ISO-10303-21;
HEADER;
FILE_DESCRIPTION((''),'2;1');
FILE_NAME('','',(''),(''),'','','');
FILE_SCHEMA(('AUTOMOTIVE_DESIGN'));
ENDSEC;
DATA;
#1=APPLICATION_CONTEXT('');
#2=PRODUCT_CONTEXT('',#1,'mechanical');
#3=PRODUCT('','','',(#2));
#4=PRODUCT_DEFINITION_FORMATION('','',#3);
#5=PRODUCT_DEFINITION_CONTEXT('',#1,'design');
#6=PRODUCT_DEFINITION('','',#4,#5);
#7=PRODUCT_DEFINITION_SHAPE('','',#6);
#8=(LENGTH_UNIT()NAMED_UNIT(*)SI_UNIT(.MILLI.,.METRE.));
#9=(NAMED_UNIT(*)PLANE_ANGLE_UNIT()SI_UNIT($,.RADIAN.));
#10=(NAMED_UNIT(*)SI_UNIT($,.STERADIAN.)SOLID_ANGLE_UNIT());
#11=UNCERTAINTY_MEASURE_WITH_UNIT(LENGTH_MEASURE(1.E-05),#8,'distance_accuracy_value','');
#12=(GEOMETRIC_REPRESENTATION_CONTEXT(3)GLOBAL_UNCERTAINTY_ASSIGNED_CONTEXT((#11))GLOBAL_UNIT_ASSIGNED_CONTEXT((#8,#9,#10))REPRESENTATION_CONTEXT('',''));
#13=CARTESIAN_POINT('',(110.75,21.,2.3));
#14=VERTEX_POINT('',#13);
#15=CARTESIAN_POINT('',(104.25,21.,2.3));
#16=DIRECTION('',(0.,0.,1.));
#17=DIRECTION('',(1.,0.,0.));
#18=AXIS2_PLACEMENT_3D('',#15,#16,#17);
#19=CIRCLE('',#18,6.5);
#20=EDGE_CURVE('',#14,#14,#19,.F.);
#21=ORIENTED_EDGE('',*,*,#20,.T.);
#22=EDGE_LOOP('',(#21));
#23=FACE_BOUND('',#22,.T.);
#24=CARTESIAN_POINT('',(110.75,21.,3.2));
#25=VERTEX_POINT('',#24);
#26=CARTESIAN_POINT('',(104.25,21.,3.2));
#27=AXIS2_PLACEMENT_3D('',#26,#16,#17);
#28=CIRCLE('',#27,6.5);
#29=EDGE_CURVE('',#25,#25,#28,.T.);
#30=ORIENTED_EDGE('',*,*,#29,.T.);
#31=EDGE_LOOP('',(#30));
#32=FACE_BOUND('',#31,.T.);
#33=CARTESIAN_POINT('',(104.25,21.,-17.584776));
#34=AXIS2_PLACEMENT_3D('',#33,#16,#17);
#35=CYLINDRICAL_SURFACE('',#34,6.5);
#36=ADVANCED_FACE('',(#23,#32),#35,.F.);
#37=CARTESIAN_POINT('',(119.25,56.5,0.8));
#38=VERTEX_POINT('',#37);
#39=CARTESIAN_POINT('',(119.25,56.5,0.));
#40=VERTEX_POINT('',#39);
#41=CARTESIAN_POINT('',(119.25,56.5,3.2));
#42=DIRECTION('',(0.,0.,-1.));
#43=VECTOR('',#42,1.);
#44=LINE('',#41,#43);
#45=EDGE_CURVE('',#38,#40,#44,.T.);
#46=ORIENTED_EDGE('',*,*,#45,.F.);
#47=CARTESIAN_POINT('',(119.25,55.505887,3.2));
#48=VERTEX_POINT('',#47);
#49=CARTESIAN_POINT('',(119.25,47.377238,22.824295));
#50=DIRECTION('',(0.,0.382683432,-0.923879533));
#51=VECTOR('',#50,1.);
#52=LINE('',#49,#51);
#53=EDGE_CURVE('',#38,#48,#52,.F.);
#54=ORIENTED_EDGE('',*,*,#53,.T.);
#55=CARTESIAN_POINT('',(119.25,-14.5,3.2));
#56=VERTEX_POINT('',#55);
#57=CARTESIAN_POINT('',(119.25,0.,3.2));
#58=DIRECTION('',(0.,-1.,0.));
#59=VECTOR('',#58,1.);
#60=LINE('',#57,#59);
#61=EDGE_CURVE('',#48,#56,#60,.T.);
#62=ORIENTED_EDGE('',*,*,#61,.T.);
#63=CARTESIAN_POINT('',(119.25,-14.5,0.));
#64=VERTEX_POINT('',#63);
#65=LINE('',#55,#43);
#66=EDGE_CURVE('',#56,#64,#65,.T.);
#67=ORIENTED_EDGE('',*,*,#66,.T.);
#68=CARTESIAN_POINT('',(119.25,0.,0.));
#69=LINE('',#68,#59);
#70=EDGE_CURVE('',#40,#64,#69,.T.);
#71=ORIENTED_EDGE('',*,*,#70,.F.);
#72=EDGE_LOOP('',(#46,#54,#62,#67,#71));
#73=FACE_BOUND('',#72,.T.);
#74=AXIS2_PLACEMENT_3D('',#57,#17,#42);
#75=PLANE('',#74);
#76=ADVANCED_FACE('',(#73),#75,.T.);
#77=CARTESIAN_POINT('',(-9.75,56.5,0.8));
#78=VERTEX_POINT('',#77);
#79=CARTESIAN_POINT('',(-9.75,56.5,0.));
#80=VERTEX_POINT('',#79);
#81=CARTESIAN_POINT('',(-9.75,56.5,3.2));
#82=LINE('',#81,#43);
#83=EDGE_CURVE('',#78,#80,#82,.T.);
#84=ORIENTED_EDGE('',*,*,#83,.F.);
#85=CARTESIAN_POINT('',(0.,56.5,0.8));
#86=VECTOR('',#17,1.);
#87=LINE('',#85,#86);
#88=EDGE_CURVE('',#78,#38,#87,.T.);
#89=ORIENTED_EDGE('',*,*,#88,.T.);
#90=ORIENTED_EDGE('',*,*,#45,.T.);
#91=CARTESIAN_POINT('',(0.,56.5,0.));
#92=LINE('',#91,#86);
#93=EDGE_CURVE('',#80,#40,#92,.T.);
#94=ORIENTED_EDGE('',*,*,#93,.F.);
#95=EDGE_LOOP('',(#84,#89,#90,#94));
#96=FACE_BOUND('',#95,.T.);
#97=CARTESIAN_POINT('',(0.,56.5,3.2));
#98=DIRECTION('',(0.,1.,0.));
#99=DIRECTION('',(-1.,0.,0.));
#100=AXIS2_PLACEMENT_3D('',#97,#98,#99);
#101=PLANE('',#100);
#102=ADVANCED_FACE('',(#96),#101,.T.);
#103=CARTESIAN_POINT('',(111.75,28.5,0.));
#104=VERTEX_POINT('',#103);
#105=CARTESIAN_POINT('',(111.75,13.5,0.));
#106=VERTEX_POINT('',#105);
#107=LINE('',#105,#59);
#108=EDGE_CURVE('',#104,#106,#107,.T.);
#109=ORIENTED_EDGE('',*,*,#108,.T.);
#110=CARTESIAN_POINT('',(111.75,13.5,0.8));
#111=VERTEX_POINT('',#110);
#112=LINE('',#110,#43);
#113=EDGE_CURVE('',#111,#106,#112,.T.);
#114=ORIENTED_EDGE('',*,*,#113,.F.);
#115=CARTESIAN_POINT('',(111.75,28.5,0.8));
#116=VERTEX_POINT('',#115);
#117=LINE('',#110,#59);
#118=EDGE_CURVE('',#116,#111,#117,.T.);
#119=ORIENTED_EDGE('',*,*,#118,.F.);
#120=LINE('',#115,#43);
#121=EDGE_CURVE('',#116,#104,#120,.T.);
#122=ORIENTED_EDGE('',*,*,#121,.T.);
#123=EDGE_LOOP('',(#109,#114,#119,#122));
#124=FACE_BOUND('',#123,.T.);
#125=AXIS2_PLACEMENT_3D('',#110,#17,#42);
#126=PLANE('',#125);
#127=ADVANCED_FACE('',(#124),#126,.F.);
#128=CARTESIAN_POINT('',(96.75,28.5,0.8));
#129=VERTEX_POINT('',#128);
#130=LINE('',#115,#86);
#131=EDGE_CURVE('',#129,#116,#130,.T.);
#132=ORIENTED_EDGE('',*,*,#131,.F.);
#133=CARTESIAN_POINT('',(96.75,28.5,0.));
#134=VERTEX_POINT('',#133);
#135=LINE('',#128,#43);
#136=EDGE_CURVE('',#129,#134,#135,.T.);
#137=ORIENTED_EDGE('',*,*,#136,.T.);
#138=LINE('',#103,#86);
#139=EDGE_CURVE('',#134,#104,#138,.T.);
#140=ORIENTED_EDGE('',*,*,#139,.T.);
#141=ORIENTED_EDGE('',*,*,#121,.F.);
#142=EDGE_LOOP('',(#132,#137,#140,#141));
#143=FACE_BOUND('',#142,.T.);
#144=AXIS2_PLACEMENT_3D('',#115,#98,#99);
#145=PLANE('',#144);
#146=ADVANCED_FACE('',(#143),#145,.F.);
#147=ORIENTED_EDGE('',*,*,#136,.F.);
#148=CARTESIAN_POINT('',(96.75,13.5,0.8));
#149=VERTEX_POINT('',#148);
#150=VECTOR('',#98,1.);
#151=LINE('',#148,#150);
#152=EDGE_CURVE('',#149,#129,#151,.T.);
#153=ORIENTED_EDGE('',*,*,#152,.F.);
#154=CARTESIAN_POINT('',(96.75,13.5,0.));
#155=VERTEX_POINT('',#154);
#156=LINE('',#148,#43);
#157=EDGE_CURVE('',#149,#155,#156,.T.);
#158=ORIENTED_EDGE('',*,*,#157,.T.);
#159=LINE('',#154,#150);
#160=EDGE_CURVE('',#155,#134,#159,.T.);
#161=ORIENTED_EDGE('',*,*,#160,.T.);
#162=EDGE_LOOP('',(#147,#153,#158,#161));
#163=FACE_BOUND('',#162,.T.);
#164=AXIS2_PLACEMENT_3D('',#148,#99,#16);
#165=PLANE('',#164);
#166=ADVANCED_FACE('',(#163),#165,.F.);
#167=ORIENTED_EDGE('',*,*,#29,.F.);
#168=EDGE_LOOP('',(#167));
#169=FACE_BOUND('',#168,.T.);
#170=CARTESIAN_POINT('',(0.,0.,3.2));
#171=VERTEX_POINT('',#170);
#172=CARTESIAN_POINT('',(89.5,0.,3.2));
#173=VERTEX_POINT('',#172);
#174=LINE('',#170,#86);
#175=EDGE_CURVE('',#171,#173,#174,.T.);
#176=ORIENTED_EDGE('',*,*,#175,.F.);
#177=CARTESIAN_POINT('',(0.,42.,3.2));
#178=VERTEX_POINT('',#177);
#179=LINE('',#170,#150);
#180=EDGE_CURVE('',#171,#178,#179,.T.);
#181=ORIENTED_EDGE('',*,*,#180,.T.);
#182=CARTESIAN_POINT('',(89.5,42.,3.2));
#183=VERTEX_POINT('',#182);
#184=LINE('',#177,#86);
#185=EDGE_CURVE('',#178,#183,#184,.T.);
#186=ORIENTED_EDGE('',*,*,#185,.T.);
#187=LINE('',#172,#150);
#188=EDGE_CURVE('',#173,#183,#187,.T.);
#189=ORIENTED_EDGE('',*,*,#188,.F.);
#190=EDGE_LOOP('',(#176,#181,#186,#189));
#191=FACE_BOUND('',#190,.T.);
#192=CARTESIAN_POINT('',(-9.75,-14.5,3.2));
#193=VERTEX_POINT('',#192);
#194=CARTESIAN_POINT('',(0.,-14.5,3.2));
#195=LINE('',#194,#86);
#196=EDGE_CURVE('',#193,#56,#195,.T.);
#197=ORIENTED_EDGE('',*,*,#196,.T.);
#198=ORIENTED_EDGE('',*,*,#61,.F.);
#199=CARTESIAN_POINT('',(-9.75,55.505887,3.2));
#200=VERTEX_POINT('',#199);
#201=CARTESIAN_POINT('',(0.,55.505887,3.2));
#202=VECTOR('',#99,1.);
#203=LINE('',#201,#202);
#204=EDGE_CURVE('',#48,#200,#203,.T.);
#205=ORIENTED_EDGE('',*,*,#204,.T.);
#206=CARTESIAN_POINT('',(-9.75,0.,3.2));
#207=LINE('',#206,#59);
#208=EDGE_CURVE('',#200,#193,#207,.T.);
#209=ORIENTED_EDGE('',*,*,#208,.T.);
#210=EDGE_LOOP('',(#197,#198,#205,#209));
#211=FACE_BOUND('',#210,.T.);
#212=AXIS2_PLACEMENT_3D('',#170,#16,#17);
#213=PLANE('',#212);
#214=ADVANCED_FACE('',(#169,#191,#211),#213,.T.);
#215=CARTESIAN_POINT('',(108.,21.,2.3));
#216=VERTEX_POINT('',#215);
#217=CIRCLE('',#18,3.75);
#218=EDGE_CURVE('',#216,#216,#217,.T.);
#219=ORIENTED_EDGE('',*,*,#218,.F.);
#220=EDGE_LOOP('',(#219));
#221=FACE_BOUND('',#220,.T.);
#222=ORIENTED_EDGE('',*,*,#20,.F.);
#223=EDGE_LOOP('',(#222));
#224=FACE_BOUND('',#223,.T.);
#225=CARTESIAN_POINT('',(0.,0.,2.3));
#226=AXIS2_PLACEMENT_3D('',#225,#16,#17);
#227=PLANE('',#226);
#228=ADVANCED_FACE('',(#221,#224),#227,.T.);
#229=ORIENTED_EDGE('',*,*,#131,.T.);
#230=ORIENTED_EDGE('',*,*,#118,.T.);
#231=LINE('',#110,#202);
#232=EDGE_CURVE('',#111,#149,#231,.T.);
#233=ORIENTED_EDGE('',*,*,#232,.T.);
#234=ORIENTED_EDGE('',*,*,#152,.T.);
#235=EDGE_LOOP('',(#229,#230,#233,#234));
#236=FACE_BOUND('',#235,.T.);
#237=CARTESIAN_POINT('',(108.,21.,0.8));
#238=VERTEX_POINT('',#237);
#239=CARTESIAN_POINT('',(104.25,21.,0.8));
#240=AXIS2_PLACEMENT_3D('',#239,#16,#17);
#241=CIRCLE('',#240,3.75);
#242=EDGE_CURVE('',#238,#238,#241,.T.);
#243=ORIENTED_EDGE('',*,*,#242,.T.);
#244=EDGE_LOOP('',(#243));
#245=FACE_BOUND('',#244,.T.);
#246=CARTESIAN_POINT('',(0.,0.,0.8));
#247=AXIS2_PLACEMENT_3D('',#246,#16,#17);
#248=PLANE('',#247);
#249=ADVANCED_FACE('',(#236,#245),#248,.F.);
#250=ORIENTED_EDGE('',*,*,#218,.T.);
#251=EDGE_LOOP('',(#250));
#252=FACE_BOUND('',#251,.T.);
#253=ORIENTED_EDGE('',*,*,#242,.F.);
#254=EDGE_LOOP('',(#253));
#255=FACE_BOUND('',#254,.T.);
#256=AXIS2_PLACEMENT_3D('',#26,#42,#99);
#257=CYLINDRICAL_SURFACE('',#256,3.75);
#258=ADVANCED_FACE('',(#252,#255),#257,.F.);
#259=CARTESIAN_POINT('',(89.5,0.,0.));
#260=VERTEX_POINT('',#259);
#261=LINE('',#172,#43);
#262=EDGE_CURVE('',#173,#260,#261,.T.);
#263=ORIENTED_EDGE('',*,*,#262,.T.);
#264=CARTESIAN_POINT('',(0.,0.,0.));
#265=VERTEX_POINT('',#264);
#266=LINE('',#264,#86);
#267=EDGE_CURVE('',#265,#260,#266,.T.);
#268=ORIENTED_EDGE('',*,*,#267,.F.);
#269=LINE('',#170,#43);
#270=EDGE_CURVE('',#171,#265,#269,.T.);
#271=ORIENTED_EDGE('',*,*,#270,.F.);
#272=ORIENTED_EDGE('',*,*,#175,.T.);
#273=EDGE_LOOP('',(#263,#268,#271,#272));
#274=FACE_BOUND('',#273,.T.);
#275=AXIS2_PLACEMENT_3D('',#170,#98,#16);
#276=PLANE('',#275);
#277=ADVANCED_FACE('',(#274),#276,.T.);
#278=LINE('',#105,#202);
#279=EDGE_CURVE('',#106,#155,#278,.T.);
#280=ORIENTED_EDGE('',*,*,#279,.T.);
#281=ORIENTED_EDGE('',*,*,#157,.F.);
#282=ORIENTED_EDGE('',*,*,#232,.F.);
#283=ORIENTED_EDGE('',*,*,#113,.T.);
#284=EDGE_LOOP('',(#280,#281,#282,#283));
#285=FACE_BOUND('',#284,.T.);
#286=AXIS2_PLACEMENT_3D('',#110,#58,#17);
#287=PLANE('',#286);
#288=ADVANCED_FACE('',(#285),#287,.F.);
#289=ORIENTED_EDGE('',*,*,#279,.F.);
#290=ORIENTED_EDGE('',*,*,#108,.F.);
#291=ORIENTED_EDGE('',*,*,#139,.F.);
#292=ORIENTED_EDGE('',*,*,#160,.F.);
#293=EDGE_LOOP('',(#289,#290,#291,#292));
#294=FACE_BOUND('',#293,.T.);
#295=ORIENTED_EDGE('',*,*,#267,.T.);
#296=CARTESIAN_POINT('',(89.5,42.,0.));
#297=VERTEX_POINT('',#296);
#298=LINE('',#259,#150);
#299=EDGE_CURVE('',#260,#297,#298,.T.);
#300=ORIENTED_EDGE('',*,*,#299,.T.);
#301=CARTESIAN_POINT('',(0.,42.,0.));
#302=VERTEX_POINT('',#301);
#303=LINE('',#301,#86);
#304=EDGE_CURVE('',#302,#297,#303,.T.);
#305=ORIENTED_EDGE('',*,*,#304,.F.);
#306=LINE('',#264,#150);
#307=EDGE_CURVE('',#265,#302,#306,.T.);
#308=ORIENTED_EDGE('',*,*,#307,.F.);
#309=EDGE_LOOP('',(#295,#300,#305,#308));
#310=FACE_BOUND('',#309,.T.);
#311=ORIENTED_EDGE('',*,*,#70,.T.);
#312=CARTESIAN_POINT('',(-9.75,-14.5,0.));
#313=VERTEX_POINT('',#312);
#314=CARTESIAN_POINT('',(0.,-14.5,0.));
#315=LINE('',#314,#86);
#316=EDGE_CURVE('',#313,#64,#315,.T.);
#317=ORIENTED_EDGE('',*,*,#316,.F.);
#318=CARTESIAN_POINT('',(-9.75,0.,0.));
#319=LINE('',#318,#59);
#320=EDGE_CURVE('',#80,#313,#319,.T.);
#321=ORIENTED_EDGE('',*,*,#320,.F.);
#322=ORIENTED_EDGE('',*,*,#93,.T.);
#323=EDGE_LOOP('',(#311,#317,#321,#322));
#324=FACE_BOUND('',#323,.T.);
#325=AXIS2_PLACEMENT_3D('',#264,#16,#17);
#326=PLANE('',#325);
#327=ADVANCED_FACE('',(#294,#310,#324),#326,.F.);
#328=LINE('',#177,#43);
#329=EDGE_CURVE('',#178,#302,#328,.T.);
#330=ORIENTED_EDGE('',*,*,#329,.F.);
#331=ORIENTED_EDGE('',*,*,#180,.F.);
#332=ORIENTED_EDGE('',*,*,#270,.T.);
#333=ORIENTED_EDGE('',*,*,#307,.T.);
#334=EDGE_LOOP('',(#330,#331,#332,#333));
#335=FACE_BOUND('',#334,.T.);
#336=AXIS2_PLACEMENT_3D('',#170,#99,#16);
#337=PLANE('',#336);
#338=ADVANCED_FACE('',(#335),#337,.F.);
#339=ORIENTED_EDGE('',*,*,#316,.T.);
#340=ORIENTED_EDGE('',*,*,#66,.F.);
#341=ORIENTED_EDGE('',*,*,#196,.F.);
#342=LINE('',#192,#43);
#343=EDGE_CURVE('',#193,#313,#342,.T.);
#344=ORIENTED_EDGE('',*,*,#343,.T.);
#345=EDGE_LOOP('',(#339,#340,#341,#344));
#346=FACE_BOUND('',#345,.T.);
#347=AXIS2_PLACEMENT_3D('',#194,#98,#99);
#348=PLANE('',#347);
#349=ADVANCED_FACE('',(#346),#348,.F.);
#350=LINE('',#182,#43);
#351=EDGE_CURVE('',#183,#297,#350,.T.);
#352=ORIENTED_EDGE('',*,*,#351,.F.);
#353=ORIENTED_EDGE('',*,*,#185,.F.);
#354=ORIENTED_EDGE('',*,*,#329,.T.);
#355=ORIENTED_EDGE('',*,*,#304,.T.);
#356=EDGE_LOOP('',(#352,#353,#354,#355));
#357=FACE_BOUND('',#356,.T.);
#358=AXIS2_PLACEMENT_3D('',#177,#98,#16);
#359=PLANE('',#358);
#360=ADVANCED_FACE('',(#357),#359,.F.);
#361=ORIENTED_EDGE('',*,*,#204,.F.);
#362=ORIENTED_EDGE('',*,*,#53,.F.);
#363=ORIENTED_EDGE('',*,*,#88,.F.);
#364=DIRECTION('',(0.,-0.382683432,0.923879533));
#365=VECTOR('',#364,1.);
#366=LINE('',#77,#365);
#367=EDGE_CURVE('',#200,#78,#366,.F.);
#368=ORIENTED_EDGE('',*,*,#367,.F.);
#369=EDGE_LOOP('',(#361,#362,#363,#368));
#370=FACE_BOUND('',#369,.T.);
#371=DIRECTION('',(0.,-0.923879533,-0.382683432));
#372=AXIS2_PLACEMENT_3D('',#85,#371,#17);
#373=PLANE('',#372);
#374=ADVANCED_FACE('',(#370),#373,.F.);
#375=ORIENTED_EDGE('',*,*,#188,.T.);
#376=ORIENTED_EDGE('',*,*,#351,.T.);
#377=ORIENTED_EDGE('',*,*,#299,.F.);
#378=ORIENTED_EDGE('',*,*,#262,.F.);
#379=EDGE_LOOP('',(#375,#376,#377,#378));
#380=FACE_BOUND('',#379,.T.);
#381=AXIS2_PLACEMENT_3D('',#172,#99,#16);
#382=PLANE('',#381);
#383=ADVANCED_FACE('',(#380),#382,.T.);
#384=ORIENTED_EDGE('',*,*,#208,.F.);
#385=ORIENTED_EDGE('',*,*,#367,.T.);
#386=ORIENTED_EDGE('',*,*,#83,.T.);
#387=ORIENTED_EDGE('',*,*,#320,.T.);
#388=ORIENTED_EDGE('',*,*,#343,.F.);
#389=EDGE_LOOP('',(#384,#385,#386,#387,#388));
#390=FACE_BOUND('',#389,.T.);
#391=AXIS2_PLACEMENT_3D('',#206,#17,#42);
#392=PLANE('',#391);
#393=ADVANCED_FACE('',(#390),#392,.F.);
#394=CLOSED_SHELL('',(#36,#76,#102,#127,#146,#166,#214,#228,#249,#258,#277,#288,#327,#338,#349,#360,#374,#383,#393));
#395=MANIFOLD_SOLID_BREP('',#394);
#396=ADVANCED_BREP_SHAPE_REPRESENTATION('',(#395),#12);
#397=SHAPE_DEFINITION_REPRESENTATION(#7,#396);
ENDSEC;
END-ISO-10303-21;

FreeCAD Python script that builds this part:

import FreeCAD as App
import Part
import Sketcher
Q = App.Units.Quantity


def edges_at(feature, points):
    """Names of the edges that pass closest to the given points."""
    edges = feature.Shape.Edges
    near = lambda p: min(range(len(edges)), key=lambda i: edges[i].distToShape(Part.Vertex(*p))[0])
    return sorted({f"Edge{near(p) + 1}" for p in points})

doc = App.newDocument("Part")
params = doc.addObject("Spreadsheet::Sheet", "Params")
for row, (alias, value) in enumerate([
    ("sketch1_diameter", "7.5 mm"),
    ("sketch1_width", "129 mm"),
    ("sketch1_height", "71 mm"),
    ("sketch1_height2", "42 mm"),
    ("sketch1_width2", "89.5 mm"),
    ("pad1_length", "3.2 mm"),
    ("chamfer_size", "2.4 mm"),
    ("chamfer_size2", "0.994113 mm"),
    ("sketch2_width", "15 mm"),
    ("pocket1_length", "0.8 mm"),
    ("sketch3_diameter", "13 mm"),
    ("pocket2_length", "0.9 mm"),
], start=1):
    params.set(f"A{row}", alias)
    params.set(f"B{row}", "=" + value)
    params.setAlias(f"B{row}", alias)

body = doc.addObject("PartDesign::Body", "Body")

# Sketch on XY plane
sketch1 = doc.addObject("Sketcher::SketchObject", "Sketch")
body.addObject(sketch1)
sketch1.AttachmentSupport = (doc.XY_Plane, [""])
sketch1.MapMode = "FlatFace"
sketch1.addGeometry([
    Part.LineSegment(App.Vector(119.25, 56.5, 0), App.Vector(-9.75, 56.5, 0)),  # 0
    Part.LineSegment(App.Vector(-9.75, 56.5, 0), App.Vector(-9.75, -14.5, 0)),  # 1
    Part.LineSegment(App.Vector(-9.75, -14.5, 0), App.Vector(119.25, -14.5, 0)),  # 2
    Part.LineSegment(App.Vector(119.25, -14.5, 0), App.Vector(119.25, 56.5, 0)),  # 3
    Part.Circle(App.Vector(104.25, 21, 0), App.Vector(0, 0, 1), 3.75),  # 4
    Part.LineSegment(App.Vector(0, 0, 0), App.Vector(0, 42, 0)),  # 5
    Part.LineSegment(App.Vector(0, 42, 0), App.Vector(89.5, 42, 0)),  # 6
    Part.LineSegment(App.Vector(89.5, 42, 0), App.Vector(89.5, 0, 0)),  # 7
    Part.LineSegment(App.Vector(89.5, 0, 0), App.Vector(0, 0, 0)),  # 8
], False)
sketch1.addConstraint([
    Sketcher.Constraint("Coincident", 0, 2, 1, 1),
    Sketcher.Constraint("Coincident", 1, 2, 2, 1),
    Sketcher.Constraint("Coincident", 2, 2, 3, 1),
    Sketcher.Constraint("Coincident", 3, 2, 0, 1),
    Sketcher.Constraint("Coincident", 5, 2, 6, 1),
    Sketcher.Constraint("Coincident", 6, 2, 7, 1),
    Sketcher.Constraint("Coincident", 7, 2, 8, 1),
    Sketcher.Constraint("Coincident", 8, 2, 5, 1),
    Sketcher.Constraint("Horizontal", 0),
    Sketcher.Constraint("Vertical", 1),
    Sketcher.Constraint("Horizontal", 2),
    Sketcher.Constraint("Vertical", 3),
    Sketcher.Constraint("Vertical", 5),
    Sketcher.Constraint("Horizontal", 6),
    Sketcher.Constraint("Vertical", 7),
    Sketcher.Constraint("Horizontal", 8),
    Sketcher.Constraint("Coincident", 8, 2, -1, 1),
    Sketcher.Constraint("Diameter", 4, Q("7.5 mm")),
    Sketcher.Constraint("DistanceX", 0, 2, 0, 1, Q("129 mm")),
    Sketcher.Constraint("DistanceY", 1, 2, 1, 1, Q("71 mm")),
    Sketcher.Constraint("DistanceY", 5, 1, 5, 2, Q("42 mm")),
    Sketcher.Constraint("DistanceX", 6, 1, 6, 2, Q("89.5 mm")),
    Sketcher.Constraint("DistanceY", -1, 1, 4, 3, Q("21 mm")),
    Sketcher.Constraint("DistanceX", 0, 2, 4, 3, Q("114 mm")),
    Sketcher.Constraint("DistanceY", -1, 1, 0, 2, Q("56.5 mm")),
    Sketcher.Constraint("DistanceX", -1, 1, 4, 3, Q("104.25 mm")),
])
sketch1.setExpression("Constraints[17]", "Params.sketch1_diameter")
sketch1.setExpression("Constraints[18]", "Params.sketch1_width")
sketch1.setExpression("Constraints[19]", "Params.sketch1_height")
sketch1.setExpression("Constraints[20]", "Params.sketch1_height2")
sketch1.setExpression("Constraints[21]", "Params.sketch1_width2")
pad1 = doc.addObject("PartDesign::Pad", "Pad")
body.addObject(pad1)
pad1.Profile = sketch1
pad1.setExpression("Length", "Params.pad1_length")
doc.recompute()

chamfer = doc.addObject("PartDesign::Chamfer", "Chamfer")
body.addObject(chamfer)
chamfer.Base = (pad1, edges_at(pad1, [(54.75, 56.5, 3.2)]))
chamfer.ChamferType = "Two distances"
chamfer.setExpression("Size", "Params.chamfer_size")
chamfer.setExpression("Size2", "Params.chamfer_size2")

# Sketch on XY plane
sketch2 = doc.addObject("Sketcher::SketchObject", "Sketch001")
body.addObject(sketch2)
sketch2.AttachmentSupport = (doc.XY_Plane, [""])
sketch2.MapMode = "FlatFace"
sketch2.addGeometry([
    Part.LineSegment(App.Vector(111.75, 28.5, 0), App.Vector(111.75, 13.5, 0)),
    Part.LineSegment(App.Vector(111.75, 13.5, 0), App.Vector(96.75, 13.5, 0)),
    Part.LineSegment(App.Vector(96.75, 13.5, 0), App.Vector(96.75, 28.5, 0)),
    Part.LineSegment(App.Vector(96.75, 28.5, 0), App.Vector(111.75, 28.5, 0)),
], False)
sketch2.addConstraint([
    Sketcher.Constraint("Coincident", 0, 2, 1, 1),
    Sketcher.Constraint("Coincident", 1, 2, 2, 1),
    Sketcher.Constraint("Coincident", 2, 2, 3, 1),
    Sketcher.Constraint("Coincident", 3, 2, 0, 1),
    Sketcher.Constraint("Vertical", 0),
    Sketcher.Constraint("Horizontal", 1),
    Sketcher.Constraint("Vertical", 2),
    Sketcher.Constraint("Horizontal", 3),
    Sketcher.Constraint("Equal", 3, 0),
    Sketcher.Constraint("DistanceX", 1, 2, 1, 1, Q("15 mm")),
    Sketcher.Constraint("DistanceY", -1, 1, 0, 2, Q("13.5 mm")),
    Sketcher.Constraint("DistanceX", -1, 1, 0, 2, Q("111.75 mm")),
])
sketch2.setExpression("Constraints[9]", "Params.sketch2_width")
pocket1 = doc.addObject("PartDesign::Pocket", "Pocket")
body.addObject(pocket1)
pocket1.Profile = sketch2
pocket1.setExpression("Length", "Params.pocket1_length")
pocket1.Reversed = True

# Sketch on XY plane
sketch3 = doc.addObject("Sketcher::SketchObject", "Sketch002")
body.addObject(sketch3)
sketch3.AttachmentSupport = (doc.XY_Plane, [""])
sketch3.MapMode = "FlatFace"
sketch3.AttachmentOffset = App.Placement(App.Vector(0, 0, 3.2), App.Rotation())
sketch3.addGeometry(Part.Circle(App.Vector(104.25, 21, 0), App.Vector(0, 0, 1), 6.5), False)
sketch3.addConstraint([
    Sketcher.Constraint("Diameter", 0, Q("13 mm")),
    Sketcher.Constraint("DistanceY", -1, 1, 0, 3, Q("21 mm")),
    Sketcher.Constraint("DistanceX", -1, 1, 0, 3, Q("104.25 mm")),
])
sketch3.setExpression("Constraints[0]", "Params.sketch3_diameter")
pocket2 = doc.addObject("PartDesign::Pocket", "Pocket001")
body.addObject(pocket2)
pocket2.Profile = sketch3
pocket2.setExpression("Length", "Params.pocket2_length")

doc.recompute()
